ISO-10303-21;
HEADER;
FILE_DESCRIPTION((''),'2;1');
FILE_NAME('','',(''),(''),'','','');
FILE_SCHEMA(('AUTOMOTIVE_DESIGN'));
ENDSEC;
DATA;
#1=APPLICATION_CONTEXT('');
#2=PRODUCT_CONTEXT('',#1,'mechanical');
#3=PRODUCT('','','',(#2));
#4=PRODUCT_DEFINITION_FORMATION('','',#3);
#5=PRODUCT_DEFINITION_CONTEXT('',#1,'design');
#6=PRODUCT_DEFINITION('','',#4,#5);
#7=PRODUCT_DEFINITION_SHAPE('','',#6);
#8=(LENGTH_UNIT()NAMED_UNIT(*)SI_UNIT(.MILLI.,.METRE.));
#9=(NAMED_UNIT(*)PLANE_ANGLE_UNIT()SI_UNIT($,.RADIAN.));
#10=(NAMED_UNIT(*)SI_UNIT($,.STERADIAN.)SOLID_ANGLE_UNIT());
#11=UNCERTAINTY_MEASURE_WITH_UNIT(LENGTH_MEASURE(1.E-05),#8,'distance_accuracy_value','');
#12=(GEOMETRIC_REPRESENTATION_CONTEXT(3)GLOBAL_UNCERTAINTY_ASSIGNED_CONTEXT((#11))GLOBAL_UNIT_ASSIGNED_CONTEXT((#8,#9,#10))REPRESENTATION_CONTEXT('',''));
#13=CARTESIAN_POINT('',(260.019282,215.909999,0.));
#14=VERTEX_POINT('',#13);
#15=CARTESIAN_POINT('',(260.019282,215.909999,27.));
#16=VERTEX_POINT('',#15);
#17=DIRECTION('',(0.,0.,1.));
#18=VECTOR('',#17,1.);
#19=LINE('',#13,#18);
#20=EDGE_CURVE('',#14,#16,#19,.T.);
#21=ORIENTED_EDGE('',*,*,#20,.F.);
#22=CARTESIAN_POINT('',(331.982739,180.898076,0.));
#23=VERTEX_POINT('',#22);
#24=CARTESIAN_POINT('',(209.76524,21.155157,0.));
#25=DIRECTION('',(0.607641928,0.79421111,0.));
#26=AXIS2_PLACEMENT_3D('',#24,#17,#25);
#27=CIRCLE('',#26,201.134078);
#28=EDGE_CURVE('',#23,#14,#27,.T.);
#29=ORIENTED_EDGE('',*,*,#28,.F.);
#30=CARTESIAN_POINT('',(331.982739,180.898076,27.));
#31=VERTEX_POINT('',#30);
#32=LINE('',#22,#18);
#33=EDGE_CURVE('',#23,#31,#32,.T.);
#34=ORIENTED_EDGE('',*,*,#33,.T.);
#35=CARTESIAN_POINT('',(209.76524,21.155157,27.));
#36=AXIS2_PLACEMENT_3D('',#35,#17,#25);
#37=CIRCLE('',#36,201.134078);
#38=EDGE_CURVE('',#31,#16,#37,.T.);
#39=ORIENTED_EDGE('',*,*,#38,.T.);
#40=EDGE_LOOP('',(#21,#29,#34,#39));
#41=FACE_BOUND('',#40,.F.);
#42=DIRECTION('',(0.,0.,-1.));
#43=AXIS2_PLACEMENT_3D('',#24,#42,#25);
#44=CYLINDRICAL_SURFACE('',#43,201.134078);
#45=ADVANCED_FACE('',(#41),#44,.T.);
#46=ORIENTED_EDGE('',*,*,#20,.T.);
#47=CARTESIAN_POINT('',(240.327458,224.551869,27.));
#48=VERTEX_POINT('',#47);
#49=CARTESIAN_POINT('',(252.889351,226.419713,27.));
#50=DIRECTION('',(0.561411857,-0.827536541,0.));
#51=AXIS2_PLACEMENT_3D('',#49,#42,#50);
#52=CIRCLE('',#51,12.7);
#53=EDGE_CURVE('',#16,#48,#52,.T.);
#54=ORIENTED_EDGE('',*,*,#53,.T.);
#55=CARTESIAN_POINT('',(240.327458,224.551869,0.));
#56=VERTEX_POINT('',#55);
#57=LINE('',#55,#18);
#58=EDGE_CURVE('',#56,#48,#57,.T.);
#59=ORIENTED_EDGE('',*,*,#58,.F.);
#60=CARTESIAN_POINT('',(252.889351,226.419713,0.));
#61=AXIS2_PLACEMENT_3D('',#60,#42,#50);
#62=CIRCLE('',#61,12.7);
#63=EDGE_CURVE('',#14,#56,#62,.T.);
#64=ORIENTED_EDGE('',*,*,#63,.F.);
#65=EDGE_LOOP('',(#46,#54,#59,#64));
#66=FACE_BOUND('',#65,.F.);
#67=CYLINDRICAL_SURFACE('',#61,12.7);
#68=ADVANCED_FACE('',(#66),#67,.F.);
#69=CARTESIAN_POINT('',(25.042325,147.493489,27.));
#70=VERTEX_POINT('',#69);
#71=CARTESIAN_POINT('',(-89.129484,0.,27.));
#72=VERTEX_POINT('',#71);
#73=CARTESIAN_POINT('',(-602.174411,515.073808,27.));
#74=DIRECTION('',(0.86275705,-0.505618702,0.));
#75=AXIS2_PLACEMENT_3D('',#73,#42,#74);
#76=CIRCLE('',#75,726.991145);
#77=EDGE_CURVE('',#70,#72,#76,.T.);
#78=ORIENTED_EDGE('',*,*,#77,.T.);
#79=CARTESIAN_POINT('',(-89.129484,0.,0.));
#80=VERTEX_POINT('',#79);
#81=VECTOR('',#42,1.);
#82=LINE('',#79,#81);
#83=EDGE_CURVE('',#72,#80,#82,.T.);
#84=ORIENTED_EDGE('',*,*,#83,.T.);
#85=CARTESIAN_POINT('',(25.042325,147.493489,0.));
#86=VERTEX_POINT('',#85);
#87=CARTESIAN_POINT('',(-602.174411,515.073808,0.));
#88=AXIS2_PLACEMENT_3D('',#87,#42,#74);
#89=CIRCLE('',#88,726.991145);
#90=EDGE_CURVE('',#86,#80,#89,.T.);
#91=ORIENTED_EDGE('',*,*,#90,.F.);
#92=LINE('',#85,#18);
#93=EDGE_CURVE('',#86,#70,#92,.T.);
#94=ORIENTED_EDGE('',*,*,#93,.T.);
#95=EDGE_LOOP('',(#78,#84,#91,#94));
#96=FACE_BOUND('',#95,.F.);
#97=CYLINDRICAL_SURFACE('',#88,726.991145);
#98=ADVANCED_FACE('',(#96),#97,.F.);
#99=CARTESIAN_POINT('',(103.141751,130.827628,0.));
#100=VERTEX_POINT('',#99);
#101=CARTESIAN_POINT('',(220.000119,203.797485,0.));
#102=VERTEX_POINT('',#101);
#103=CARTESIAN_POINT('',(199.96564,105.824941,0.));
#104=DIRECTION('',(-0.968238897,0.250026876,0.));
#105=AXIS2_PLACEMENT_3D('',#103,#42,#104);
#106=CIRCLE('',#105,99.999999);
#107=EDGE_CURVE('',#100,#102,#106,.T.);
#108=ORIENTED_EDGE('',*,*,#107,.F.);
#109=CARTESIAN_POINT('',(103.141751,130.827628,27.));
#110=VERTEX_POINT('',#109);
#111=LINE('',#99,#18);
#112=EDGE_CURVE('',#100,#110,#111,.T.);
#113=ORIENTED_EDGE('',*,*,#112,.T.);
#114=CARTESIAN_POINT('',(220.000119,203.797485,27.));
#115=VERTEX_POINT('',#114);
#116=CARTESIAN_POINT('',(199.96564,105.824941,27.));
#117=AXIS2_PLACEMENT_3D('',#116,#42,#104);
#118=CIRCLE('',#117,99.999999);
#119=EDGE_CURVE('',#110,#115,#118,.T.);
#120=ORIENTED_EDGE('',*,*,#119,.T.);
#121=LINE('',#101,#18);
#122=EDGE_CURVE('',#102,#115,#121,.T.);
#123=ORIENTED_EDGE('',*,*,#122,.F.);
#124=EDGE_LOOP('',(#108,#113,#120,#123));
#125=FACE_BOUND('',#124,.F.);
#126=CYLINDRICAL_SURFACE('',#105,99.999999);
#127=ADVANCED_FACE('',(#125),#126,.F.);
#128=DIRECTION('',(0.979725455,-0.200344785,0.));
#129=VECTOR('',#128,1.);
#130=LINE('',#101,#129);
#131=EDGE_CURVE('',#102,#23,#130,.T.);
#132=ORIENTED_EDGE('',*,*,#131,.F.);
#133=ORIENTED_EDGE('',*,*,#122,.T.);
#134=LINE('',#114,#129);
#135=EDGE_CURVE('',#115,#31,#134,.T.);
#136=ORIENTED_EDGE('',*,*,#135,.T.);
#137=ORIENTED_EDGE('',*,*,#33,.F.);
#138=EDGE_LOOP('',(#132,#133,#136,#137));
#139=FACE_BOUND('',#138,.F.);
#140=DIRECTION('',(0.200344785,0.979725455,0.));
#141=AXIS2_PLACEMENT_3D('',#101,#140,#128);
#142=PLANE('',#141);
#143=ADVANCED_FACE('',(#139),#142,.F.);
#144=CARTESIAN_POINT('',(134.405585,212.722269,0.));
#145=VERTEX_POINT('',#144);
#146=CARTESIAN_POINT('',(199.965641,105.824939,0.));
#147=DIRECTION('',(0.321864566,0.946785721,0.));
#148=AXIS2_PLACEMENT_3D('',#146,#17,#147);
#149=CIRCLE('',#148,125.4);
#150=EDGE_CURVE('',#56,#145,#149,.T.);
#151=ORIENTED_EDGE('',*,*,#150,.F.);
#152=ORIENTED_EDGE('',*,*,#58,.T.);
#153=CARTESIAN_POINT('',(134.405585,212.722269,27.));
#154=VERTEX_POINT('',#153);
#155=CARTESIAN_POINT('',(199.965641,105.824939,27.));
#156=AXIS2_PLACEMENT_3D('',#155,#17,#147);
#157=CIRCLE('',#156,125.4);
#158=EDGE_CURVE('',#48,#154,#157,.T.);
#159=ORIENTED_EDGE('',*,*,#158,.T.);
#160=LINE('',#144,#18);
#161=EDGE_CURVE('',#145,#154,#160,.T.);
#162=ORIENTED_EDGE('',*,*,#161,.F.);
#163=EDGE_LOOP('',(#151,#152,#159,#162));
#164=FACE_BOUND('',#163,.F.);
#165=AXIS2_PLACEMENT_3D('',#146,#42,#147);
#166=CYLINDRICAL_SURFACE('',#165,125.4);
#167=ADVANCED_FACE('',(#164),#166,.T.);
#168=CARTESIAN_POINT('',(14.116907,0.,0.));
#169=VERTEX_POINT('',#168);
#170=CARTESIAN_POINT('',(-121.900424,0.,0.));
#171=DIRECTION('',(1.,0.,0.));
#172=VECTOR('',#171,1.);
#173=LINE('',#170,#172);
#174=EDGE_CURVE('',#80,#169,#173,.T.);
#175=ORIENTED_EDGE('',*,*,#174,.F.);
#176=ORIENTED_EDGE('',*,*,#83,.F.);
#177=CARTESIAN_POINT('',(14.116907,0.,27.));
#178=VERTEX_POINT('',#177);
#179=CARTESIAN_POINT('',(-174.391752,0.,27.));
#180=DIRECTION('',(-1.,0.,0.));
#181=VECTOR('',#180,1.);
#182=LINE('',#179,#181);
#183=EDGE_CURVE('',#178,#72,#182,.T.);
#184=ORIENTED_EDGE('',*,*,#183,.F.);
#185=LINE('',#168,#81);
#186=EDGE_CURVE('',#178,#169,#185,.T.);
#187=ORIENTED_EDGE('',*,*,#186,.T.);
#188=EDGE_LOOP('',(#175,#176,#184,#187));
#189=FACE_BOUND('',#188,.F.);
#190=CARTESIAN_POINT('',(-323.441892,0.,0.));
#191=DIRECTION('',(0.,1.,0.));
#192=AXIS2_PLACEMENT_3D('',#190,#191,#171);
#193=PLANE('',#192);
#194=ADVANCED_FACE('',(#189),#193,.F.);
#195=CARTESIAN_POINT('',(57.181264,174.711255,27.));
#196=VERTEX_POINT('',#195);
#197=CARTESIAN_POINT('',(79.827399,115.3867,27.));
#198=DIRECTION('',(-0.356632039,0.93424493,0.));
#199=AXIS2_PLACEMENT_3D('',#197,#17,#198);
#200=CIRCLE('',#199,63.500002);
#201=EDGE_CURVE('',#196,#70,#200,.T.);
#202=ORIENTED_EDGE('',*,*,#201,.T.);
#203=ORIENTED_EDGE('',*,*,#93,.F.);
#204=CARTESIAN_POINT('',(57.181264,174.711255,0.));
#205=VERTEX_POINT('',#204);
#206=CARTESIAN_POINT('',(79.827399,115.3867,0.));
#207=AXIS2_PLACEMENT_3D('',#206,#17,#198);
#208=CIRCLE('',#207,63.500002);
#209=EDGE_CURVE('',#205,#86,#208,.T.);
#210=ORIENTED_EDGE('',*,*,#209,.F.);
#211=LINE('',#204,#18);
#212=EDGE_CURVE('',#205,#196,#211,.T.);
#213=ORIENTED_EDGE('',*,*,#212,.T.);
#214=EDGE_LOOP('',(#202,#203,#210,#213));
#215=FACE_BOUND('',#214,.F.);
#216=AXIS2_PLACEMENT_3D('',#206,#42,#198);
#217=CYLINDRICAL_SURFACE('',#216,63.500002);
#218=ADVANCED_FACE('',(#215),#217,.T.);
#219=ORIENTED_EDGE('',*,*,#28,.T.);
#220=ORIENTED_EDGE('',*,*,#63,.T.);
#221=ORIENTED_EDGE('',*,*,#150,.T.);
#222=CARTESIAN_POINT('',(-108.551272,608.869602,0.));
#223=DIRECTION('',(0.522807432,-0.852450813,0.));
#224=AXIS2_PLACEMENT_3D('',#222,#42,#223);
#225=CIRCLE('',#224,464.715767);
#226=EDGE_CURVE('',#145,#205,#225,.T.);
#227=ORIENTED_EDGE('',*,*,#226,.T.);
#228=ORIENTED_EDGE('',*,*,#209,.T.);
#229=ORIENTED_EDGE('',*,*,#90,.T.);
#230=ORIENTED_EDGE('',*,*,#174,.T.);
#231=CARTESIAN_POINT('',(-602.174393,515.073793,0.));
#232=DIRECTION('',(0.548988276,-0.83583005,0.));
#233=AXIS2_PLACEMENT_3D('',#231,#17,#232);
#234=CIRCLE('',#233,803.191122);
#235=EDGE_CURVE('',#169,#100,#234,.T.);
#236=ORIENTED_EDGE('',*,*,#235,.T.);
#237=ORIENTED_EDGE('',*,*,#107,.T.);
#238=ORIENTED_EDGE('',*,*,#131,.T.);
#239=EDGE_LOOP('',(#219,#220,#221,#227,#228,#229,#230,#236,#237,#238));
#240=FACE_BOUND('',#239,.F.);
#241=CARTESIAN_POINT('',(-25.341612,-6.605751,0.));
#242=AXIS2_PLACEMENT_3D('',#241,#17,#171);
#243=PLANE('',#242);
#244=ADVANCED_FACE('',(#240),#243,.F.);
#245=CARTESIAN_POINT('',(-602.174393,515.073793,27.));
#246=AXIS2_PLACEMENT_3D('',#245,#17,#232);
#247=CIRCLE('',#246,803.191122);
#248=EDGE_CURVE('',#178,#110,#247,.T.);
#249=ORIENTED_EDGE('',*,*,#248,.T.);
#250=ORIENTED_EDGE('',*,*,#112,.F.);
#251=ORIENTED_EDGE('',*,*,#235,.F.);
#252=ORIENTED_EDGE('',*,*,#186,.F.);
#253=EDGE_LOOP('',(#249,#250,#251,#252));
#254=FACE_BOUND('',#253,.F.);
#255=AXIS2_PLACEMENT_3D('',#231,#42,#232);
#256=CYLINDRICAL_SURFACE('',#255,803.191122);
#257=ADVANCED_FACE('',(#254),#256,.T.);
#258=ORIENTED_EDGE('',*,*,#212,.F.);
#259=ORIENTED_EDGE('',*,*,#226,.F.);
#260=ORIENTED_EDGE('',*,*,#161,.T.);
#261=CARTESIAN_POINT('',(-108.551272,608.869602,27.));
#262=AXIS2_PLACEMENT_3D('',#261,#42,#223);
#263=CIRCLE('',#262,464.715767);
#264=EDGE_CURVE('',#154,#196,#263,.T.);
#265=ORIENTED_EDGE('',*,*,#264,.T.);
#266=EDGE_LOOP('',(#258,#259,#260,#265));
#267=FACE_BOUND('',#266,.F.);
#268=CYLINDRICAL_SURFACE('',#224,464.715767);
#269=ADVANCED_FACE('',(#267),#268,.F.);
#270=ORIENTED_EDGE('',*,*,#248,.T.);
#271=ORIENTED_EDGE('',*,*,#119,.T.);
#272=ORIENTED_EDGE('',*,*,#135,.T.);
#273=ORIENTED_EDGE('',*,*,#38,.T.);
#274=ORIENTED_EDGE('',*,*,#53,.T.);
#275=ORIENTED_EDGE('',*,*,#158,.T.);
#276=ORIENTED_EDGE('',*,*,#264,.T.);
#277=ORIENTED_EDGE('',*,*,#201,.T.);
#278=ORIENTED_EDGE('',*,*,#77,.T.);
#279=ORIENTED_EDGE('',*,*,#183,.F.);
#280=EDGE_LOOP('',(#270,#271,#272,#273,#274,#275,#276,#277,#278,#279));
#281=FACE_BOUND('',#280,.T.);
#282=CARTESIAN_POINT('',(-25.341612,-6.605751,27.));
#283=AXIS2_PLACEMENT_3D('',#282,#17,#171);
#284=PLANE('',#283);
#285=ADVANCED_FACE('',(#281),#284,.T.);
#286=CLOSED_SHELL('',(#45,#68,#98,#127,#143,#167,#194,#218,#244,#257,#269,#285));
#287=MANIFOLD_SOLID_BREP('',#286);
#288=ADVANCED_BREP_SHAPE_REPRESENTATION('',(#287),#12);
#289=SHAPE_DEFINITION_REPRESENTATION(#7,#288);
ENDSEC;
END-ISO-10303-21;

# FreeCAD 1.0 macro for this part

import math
import FreeCAD as App
import Part
import Sketcher
Q = App.Units.Quantity


def add_polygon(sketch, points):
    """Adds a closed chain of lines whose ends are joined by coincident constraints."""
    first, n = sketch.GeometryCount, len(points)
    for a, b in zip(points, points[1:] + points[:1]):
        sketch.addGeometry(Part.LineSegment(App.Vector(*a, 0), App.Vector(*b, 0)), False)
    for i in range(n):
        sketch.addConstraint(Sketcher.Constraint("Coincident", first + i, 2, first + (i + 1) % n, 1))

doc = App.newDocument("Part")
params = doc.addObject("Spreadsheet::Sheet", "Params")
for row, (alias, value) in enumerate([
    ("sketch1_radius", "99.999999 mm"),
    ("sketch1_radius2", "100.000001 mm"),
    ("sketch1_radius3", "12.7 mm"),
    ("sketch1_radius4", "125.4 mm"),
    ("sketch1_radius5", "63.500002 mm"),
    ("pad1_length", "27 mm"),
    ("pocket1_length", "50 mm"),
], start=1):
    params.set(f"A{row}", alias)
    params.set(f"B{row}", "=" + value)
    params.setAlias(f"B{row}", alias)

body = doc.addObject("PartDesign::Body", "Body")

# Sketch on XY plane
sketch1 = doc.addObject("Sketcher::SketchObject", "Sketch")
body.addObject(sketch1)
sketch1.AttachmentSupport = (doc.XY_Plane, [""])
sketch1.MapMode = "FlatFace"
sketch1.addGeometry([
    Part.ArcOfCircle(Part.Circle(App.Vector(199.96564, 105.824941, 0), App.Vector(0, 0, 1), 99.999999), math.radians(78.442878), math.radians(165.520897)),  # 0
    Part.LineSegment(App.Vector(220.000119, 203.797485, 0), App.Vector(331.982739, 180.898076, 0)),  # 1
    Part.ArcOfCircle(Part.Circle(App.Vector(209.76524, 21.155157, 0), App.Vector(0, 0, 1), 201.134078), math.radians(52.580806), math.radians(75.53116)),  # 2
    Part.ArcOfCircle(Part.Circle(App.Vector(252.889351, 226.419713, 0), App.Vector(0, 0, 1), 12.7), math.radians(-171.542581), math.radians(-55.846507)),  # 3
    Part.ArcOfCircle(Part.Circle(App.Vector(199.965641, 105.824939, 0), App.Vector(0, 0, 1), 125.4), math.radians(71.224277), math.radians(121.52076)),  # 4
    Part.ArcOfCircle(Part.Circle(App.Vector(-108.551272, 608.869602, 0), App.Vector(0, 0, 1), 464.715767), math.radians(-69.106498), math.radians(-58.479242)),  # 5
    Part.ArcOfCircle(Part.Circle(App.Vector(79.827399, 115.3867, 0), App.Vector(0, 0, 1), 63.500002), math.radians(110.893501), math.radians(149.627568)),  # 6
    Part.ArcOfCircle(Part.Circle(App.Vector(-602.174411, 515.073808, 0), App.Vector(0, 0, 1), 726.991145), math.radians(-56.702367), math.radians(-30.372432)),  # 7
    Part.ArcOfCircle(Part.Circle(App.Vector(28.839162, -289.778717, 0), App.Vector(0, 0, 1), 304.420453), math.radians(139.622109), math.radians(171.768883)),  # 8
    Part.LineSegment(App.Vector(-272.445342, -246.19592, 0), App.Vector(-253.424359, -365.238374, 0)),  # 9
    Part.ArcOfCircle(Part.Circle(App.Vector(-253.424362, -352.538368, 0), App.Vector(0, 0, 1), 12.700006), math.radians(-89.999986), math.radians(-39.749618)),  # 10
    Part.ArcOfCircle(Part.Circle(App.Vector(-305.486427, -309.239419, 0), App.Vector(0, 0, 1), 80.414536), math.radians(-39.749604), math.radians(18.317475)),  # 11
    Part.ArcOfCircle(Part.Circle(App.Vector(-134.213554, -252.538375, 0), App.Vector(0, 0, 1), 100.000001), math.radians(105.675174), math.radians(198.317475)),  # 12
    Part.ArcOfCircle(Part.Circle(App.Vector(-602.174393, 515.073793, 0), App.Vector(0, 0, 1), 803.191122), math.radians(-56.702368), math.radians(-28.580918)),  # 13
], False)
sketch1.addConstraint([
    Sketcher.Constraint("Tangent", 0, 1, 1, 1),
    Sketcher.Constraint("Coincident", 1, 2, 2, 1),
    Sketcher.Constraint("Coincident", 2, 2, 3, 2),
    Sketcher.Constraint("Coincident", 3, 1, 4, 1),
    Sketcher.Constraint("Tangent", 4, 2, 5, 2),
    Sketcher.Constraint("Tangent", 5, 1, 6, 1),
    Sketcher.Constraint("Tangent", 6, 2, 7, 2),
    Sketcher.Constraint("Coincident", 7, 1, 8, 1),
    Sketcher.Constraint("Coincident", 8, 2, 9, 1),
    Sketcher.Constraint("Coincident", 9, 2, 10, 1),
    Sketcher.Constraint("Tangent", 10, 2, 11, 1),
    Sketcher.Constraint("Tangent", 11, 2, 12, 2),
    Sketcher.Constraint("Coincident", 12, 1, 13, 1),
    Sketcher.Constraint("Coincident", 13, 2, 0, 2),
    Sketcher.Constraint("Coincident", 4, 3, 0, 3),
    Sketcher.Constraint("Radius", 0, Q("99.999999 mm")),
    Sketcher.Constraint("Radius", 12, Q("100.000001 mm")),
    Sketcher.Constraint("Radius", 3, Q("12.7 mm")),
    Sketcher.Constraint("Radius", 4, Q("125.4 mm")),
    Sketcher.Constraint("Radius", 6, Q("63.500002 mm")),
    Sketcher.Constraint("Distance", 1, Q("114.300001 mm")),
    Sketcher.Constraint("DistanceY", 9, 2, 12, 3, Q("112.699999 mm")),
    Sketcher.Constraint("DistanceY", -1, 1, 2, 2, Q("215.909999 mm")),
    Sketcher.Constraint("Radius", 2, Q("201.134078 mm")),
    Sketcher.Constraint("Radius", 13, Q("803.191122 mm")),
    Sketcher.Constraint("DistanceX", 10, 3, 0, 3, Q("453.390002 mm")),
    Sketcher.Constraint("Radius", 5, Q("464.715767 mm")),
    Sketcher.Constraint("Radius", 7, Q("726.991145 mm")),
    Sketcher.Constraint("Radius", 8, Q("304.420453 mm")),
    Sketcher.Constraint("Radius", 10, Q("12.700006 mm")),
    Sketcher.Constraint("Radius", 11, Q("80.414536 mm")),
    Sketcher.Constraint("DistanceX", -1, 1, 6, 3, Q("79.827399 mm")),
    Sketcher.Constraint("DistanceY", -1, 1, 6, 3, Q("115.3867 mm")),
    Sketcher.Constraint("DistanceX", 0, 3, 2, 3, Q("9.7996 mm")),
    Sketcher.Constraint("DistanceY", 11, 3, 8, 3, Q("19.460702 mm")),
    Sketcher.Constraint("DistanceX", 0, 3, 1, 2, Q("132.017099 mm")),
    Sketcher.Constraint("DistanceY", 4, 2, 3, 1, Q("11.8296 mm")),
    Sketcher.Constraint("DistanceY", 11, 3, 8, 2, Q("63.043499 mm")),
    Sketcher.Constraint("DistanceX", -1, 1, 0, 3, Q("199.96564 mm")),
    Sketcher.Constraint("DistanceY", -1, 1, 0, 3, Q("105.824941 mm")),
    Sketcher.Constraint("DistanceX", 7, 3, -1, 1, Q("602.174411 mm")),
    Sketcher.Constraint("DistanceX", -1, 1, 8, 3, Q("28.839162 mm")),
    Sketcher.Constraint("DistanceY", 11, 3, -1, 1, Q("309.239419 mm")),
    Sketcher.Constraint("DistanceX", 9, 2, -1, 1, Q("253.424359 mm")),
    Sketcher.Constraint("DistanceX", 10, 2, -1, 1, Q("243.660012 mm")),
    Sketcher.Constraint("DistanceX", -1, 1, 13, 2, Q("103.141751 mm")),
    Sketcher.Constraint("DistanceX", 13, 3, 5, 3, Q("493.623121 mm")),
])
sketch1.setExpression("Constraints[15]", "Params.sketch1_radius")
sketch1.setExpression("Constraints[16]", "Params.sketch1_radius2")
sketch1.setExpression("Constraints[17]", "Params.sketch1_radius3")
sketch1.setExpression("Constraints[18]", "Params.sketch1_radius4")
sketch1.setExpression("Constraints[19]", "Params.sketch1_radius5")
pad1 = doc.addObject("PartDesign::Pad", "Pad")
body.addObject(pad1)
pad1.Profile = sketch1
pad1.setExpression("Length", "Params.pad1_length")

# Sketch on XY plane
sketch2 = doc.addObject("Sketcher::SketchObject", "Sketch001")
body.addObject(sketch2)
sketch2.AttachmentSupport = (doc.XY_Plane, [""])
sketch2.MapMode = "FlatFace"
add_polygon(sketch2, [(-323, 0), (-323, -390), (80, -390), (80, 0)])  # lines 0-3
sketch2.addConstraint([
    Sketcher.Constraint("Vertical", 0),
    Sketcher.Constraint("Horizontal", 1),
    Sketcher.Constraint("Vertical", 2),
    Sketcher.Constraint("Horizontal", 3),
    Sketcher.Constraint("PointOnObject", 2, 2, -1),
    Sketcher.Constraint("DistanceY", 0, 2, 0, 1, Q("389.70685 mm")),
    Sketcher.Constraint("DistanceX", 1, 1, 1, 2, Q("403.082937 mm")),
    Sketcher.Constraint("DistanceX", 0, 2, -1, 1, Q("323.441892 mm")),
])
pocket1 = doc.addObject("PartDesign::Pocket", "Pocket")
body.addObject(pocket1)
pocket1.Profile = sketch2
pocket1.setExpression("Length", "Params.pocket1_length")
pocket1.Reversed = True

doc.recompute()
